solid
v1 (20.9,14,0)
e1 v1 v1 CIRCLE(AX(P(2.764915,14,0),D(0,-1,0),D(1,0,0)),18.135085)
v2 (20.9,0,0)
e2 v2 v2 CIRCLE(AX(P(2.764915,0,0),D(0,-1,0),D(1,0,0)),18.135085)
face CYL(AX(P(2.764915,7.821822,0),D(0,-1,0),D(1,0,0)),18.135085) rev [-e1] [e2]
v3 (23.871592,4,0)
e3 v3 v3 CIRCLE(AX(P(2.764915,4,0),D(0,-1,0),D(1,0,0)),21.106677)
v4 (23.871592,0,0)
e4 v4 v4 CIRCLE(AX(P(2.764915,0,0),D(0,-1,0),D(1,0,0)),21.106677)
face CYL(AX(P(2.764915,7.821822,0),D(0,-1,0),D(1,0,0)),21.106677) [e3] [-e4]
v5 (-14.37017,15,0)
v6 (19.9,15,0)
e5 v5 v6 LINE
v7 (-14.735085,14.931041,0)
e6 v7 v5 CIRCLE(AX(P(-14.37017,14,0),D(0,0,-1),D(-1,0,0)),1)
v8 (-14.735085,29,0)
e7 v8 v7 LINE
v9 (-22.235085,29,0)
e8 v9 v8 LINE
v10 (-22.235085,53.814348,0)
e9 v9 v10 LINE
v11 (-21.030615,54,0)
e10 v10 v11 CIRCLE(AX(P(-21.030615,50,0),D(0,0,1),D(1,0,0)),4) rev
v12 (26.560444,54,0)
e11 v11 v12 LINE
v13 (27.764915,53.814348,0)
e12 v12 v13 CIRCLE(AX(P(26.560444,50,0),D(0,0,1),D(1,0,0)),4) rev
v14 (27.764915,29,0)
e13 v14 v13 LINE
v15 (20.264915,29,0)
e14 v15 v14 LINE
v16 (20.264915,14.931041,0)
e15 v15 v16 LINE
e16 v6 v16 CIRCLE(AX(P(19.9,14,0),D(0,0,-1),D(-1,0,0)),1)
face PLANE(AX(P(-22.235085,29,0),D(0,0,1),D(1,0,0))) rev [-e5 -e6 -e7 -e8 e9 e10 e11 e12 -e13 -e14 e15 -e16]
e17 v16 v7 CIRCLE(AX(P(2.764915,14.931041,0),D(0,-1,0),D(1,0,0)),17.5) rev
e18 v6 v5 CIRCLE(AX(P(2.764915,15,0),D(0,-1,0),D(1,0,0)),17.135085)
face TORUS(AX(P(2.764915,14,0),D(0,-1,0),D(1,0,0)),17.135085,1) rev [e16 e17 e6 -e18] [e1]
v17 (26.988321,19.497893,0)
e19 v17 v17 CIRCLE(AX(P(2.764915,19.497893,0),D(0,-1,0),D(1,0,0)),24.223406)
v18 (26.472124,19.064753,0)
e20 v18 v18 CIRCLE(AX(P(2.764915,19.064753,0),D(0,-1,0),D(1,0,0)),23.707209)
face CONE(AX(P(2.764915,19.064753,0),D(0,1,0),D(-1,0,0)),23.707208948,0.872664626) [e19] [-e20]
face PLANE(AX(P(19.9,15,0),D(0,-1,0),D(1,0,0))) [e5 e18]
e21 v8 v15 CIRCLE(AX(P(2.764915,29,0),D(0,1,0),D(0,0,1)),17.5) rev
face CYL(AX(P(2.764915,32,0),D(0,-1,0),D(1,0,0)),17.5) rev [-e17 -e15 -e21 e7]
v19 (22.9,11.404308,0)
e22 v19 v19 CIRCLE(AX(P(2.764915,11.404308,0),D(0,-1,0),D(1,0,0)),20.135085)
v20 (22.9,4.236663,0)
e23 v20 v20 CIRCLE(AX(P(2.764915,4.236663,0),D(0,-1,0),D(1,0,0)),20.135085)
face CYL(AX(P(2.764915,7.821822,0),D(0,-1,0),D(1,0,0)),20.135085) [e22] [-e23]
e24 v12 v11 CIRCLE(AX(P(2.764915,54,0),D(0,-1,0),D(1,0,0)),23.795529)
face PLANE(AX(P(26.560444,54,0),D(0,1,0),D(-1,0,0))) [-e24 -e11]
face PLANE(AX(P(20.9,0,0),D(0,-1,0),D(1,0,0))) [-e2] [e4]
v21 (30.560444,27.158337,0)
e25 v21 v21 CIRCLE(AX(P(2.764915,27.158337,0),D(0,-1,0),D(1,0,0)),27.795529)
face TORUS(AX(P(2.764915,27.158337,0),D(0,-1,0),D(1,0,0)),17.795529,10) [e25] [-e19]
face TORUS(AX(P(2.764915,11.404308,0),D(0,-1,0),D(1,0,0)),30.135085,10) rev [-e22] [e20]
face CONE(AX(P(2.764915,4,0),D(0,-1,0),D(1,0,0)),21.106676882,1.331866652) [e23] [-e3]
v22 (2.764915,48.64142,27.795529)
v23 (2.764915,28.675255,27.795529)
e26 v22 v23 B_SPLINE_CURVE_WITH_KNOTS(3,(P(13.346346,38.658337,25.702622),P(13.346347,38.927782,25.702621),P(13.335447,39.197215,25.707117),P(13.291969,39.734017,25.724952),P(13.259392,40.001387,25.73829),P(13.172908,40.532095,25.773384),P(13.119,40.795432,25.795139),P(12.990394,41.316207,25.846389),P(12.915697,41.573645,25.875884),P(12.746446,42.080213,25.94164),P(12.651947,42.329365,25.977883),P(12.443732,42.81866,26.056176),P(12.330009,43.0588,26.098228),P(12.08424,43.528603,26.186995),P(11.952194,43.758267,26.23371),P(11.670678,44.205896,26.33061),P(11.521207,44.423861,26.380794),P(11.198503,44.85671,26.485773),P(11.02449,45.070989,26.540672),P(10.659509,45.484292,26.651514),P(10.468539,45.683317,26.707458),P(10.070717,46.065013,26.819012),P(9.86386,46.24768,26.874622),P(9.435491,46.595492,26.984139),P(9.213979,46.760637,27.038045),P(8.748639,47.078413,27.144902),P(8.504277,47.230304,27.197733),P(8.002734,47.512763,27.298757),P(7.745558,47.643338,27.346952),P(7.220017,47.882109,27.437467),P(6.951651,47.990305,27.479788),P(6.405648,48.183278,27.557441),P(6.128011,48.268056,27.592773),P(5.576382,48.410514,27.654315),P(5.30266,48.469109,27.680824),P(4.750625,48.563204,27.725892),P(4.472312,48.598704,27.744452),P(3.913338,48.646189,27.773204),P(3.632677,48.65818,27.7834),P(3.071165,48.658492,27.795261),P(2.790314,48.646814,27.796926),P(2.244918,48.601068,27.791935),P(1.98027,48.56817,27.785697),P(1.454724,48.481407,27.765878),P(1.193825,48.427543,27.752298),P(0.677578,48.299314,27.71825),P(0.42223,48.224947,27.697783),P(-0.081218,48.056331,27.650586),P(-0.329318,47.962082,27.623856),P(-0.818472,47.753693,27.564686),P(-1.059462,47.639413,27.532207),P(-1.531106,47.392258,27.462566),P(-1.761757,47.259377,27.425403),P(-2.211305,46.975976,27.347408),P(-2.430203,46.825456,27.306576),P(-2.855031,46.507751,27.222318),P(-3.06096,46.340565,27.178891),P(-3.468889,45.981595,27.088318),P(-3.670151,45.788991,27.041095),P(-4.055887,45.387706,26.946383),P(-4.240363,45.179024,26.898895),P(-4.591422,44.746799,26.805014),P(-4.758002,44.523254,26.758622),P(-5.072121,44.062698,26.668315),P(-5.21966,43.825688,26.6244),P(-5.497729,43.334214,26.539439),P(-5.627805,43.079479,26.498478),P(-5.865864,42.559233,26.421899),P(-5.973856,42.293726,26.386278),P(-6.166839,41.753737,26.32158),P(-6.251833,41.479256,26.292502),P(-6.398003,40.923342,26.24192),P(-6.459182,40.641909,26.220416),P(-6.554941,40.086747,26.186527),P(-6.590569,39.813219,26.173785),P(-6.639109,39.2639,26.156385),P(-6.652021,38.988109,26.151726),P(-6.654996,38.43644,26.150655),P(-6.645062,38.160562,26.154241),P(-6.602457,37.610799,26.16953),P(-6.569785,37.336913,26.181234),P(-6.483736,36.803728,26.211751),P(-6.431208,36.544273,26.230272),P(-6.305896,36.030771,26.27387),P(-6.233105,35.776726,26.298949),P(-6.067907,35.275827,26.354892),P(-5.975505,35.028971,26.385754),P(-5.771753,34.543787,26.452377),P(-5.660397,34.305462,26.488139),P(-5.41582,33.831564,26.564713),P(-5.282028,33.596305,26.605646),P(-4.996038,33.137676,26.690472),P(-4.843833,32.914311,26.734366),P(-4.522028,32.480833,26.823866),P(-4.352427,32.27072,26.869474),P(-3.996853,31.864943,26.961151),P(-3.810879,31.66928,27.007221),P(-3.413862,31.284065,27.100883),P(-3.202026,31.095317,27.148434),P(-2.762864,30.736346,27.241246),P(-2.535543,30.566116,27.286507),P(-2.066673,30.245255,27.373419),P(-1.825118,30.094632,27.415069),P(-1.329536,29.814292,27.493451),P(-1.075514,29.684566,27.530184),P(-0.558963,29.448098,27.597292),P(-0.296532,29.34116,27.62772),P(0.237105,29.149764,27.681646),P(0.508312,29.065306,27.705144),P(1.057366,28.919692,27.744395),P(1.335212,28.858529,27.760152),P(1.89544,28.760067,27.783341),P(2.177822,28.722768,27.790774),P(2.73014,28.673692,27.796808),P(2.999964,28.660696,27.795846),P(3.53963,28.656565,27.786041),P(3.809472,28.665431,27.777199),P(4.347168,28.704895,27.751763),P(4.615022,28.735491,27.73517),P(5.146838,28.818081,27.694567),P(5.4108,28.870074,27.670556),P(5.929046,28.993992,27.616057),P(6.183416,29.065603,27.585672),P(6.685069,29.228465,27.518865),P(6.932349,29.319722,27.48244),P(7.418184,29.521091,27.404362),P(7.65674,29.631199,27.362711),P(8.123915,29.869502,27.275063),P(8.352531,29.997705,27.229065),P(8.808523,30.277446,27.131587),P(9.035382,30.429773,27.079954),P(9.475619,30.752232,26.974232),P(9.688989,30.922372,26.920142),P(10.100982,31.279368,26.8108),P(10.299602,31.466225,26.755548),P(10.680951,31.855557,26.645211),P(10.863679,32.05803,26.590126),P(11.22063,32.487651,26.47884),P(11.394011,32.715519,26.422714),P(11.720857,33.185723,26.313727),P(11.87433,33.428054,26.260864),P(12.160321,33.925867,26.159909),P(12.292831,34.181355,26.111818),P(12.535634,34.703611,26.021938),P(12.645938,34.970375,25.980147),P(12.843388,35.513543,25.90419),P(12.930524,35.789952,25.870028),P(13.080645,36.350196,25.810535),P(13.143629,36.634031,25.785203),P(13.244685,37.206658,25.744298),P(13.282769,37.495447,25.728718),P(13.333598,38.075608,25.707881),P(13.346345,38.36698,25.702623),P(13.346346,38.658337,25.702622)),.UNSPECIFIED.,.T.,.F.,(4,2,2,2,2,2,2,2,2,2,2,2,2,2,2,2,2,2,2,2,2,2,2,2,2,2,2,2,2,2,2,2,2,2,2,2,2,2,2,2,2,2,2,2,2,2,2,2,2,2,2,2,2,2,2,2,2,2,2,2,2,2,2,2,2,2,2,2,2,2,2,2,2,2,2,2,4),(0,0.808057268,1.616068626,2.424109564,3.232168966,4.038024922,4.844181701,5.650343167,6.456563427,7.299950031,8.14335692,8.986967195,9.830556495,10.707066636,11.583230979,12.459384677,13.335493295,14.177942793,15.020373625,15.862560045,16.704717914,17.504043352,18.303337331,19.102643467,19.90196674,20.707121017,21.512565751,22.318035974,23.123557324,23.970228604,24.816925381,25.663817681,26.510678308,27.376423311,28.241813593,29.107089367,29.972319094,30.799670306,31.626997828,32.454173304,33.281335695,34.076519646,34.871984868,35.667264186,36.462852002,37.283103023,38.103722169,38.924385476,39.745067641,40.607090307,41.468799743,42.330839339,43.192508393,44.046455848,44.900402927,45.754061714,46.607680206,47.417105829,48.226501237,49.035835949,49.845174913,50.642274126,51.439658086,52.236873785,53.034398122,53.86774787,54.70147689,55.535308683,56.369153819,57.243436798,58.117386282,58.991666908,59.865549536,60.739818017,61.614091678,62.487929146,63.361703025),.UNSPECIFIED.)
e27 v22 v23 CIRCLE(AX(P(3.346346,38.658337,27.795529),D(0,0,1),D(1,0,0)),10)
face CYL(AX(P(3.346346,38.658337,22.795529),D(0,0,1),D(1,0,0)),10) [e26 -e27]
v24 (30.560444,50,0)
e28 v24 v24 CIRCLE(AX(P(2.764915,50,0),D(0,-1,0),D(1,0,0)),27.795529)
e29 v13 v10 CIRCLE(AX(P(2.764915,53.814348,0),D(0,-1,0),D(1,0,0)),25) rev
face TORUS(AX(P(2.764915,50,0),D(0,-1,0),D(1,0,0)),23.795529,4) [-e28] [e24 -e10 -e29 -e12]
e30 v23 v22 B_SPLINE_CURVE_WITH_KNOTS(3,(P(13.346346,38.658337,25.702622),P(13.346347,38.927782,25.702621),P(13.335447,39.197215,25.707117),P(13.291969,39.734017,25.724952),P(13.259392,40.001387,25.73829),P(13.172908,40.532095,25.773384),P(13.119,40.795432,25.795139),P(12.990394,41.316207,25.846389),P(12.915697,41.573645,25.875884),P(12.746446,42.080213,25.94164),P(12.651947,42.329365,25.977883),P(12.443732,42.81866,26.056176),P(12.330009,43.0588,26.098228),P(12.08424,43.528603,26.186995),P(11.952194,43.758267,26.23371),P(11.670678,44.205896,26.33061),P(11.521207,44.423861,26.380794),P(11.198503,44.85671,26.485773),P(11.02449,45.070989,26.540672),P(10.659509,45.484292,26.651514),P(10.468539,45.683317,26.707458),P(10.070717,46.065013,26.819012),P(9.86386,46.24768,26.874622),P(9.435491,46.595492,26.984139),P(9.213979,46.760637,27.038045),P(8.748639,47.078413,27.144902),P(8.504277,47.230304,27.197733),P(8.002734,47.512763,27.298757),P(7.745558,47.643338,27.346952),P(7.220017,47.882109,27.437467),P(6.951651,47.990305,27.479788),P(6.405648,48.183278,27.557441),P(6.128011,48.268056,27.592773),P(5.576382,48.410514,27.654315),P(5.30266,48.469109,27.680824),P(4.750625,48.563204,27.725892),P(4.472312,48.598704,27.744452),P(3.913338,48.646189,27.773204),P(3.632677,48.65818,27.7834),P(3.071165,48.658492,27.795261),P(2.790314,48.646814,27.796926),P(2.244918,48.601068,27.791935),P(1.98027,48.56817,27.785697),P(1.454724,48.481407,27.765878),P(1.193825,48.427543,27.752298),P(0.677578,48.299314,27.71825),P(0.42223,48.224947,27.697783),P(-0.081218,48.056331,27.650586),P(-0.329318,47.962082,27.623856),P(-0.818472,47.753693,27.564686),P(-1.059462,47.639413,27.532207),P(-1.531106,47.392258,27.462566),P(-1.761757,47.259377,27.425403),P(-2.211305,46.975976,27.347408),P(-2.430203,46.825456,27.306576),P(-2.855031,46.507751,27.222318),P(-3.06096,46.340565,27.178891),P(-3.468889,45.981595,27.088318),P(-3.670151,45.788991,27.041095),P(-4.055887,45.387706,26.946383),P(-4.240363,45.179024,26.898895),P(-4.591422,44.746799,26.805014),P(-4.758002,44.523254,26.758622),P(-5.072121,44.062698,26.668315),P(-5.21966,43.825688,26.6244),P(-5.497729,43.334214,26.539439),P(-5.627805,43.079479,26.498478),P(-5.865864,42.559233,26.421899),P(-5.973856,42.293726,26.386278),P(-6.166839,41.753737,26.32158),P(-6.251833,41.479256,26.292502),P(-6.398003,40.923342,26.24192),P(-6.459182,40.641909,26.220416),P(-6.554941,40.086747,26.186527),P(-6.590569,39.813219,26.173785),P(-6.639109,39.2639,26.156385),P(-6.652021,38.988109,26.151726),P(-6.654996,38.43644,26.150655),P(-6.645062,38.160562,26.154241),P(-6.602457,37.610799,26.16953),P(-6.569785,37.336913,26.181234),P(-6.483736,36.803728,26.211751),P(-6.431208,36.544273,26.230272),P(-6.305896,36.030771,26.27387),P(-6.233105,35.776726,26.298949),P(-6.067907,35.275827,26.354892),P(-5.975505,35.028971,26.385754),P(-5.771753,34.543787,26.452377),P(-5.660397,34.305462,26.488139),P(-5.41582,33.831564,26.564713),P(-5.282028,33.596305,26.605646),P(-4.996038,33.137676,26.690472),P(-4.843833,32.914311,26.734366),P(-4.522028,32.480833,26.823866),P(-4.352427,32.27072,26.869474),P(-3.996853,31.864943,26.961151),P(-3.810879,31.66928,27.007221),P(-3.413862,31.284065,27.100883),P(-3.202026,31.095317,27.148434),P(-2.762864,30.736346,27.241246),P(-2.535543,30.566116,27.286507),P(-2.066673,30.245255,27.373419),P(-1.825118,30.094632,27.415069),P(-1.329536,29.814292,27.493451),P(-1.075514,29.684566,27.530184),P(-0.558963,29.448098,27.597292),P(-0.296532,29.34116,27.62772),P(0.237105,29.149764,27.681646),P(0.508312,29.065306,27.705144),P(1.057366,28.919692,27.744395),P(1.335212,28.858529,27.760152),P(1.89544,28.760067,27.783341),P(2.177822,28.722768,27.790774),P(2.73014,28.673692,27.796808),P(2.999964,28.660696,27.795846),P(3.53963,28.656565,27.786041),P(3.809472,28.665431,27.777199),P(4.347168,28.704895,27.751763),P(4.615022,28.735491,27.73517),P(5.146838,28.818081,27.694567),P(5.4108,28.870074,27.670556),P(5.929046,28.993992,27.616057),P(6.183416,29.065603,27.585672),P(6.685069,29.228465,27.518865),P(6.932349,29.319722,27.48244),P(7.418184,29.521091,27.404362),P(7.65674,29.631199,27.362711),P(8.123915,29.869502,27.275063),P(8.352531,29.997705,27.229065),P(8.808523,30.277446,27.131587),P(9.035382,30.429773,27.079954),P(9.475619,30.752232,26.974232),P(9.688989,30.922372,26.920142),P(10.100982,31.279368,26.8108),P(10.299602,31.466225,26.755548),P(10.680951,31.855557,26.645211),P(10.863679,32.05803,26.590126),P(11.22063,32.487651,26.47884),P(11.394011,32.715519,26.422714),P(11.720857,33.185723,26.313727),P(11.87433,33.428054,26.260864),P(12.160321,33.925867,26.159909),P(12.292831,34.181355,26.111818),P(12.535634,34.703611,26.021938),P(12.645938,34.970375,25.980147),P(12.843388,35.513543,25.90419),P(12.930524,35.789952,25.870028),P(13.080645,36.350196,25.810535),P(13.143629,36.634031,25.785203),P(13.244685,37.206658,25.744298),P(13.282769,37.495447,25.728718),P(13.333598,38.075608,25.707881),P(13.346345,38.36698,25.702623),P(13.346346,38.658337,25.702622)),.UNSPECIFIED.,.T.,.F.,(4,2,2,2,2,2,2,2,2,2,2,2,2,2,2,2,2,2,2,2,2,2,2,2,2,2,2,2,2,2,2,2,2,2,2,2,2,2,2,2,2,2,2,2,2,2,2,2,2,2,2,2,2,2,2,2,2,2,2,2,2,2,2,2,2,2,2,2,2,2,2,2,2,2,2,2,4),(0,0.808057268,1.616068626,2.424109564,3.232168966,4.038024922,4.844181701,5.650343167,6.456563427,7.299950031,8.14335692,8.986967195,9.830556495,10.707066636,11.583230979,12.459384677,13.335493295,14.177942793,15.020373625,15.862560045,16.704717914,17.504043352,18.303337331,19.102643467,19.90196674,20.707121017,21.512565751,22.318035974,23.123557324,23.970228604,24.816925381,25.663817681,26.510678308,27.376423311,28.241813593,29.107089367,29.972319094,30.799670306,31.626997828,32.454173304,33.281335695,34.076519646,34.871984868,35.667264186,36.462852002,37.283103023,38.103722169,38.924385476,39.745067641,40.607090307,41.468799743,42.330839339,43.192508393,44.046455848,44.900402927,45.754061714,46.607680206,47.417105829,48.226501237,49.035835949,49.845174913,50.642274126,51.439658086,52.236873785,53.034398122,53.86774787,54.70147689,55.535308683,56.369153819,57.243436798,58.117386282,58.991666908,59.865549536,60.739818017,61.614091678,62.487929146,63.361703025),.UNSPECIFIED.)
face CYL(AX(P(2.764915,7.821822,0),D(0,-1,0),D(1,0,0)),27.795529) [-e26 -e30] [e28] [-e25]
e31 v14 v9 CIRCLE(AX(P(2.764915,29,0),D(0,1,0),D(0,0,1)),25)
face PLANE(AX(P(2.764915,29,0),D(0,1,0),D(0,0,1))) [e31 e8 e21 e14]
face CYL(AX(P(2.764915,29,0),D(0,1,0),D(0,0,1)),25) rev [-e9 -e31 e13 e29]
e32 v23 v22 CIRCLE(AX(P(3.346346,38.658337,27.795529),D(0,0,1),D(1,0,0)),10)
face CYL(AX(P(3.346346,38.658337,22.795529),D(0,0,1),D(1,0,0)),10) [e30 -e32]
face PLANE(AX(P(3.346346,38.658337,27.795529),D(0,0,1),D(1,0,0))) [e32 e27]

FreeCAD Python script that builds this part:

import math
import FreeCAD as App
import Part
import Sketcher
from FreeCAD import Vector
Q = App.Units.Quantity

doc = App.newDocument("Part")
body = doc.addObject("PartDesign::Body", "Body")

# Sketch on XY plane
sketch1 = doc.addObject("Sketcher::SketchObject", "Sketch")
body.addObject(sketch1)
sketch1.AttachmentSupport = (doc.XY_Plane, [""])
sketch1.MapMode = "FlatFace"
sketch1.addGeometry([
    Part.LineSegment(Vector(20.9, 0, 0), Vector(23.871592, 0, 0)),  # 0
    Part.LineSegment(Vector(23.871592, 0, 0), Vector(23.871592, 4, 0)),  # 1
    Part.LineSegment(Vector(23.871592, 4, 0), Vector(22.9, 4.236663, 0)),  # 2
    Part.LineSegment(Vector(22.9, 4.236663, 0), Vector(22.9, 11.404308, 0)),  # 3
    Part.ArcOfCircle(Part.Circle(Vector(32.9, 11.404308, 0), Vector(0, 0, 1), 10), math.radians(130), math.radians(180)),  # 4
    Part.LineSegment(Vector(26.472124, 19.064753, 0), Vector(26.988321, 19.497893, 0)),  # 5
    Part.ArcOfCircle(Part.Circle(Vector(20.560444, 27.158337, 0), Vector(0, 0, 1), 10), math.radians(-50), math.radians(0)),  # 6
    Part.LineSegment(Vector(30.560444, 27.158337, 0), Vector(30.560444, 50, 0)),  # 7
    Part.ArcOfCircle(Part.Circle(Vector(26.560444, 50, 0), Vector(0, 0, 1), 4), math.radians(0), math.radians(90)),  # 8
    Part.LineSegment(Vector(26.560444, 54, 0), Vector(2.764915, 54, 0)),  # 9
    Part.LineSegment(Vector(2.764915, 54, 0), Vector(2.764915, 15, 0)),  # 10
    Part.LineSegment(Vector(2.764915, 15, 0), Vector(19.9, 15, 0)),  # 11
    Part.ArcOfCircle(Part.Circle(Vector(19.9, 14, 0), Vector(0, 0, 1), 1), math.radians(0), math.radians(90)),  # 12
    Part.LineSegment(Vector(20.9, 14, 0), Vector(20.9, 0, 0)),  # 13
], False)
sketch1.addGeometry(Part.LineSegment(Vector(2.764915, 0, 0), Vector(2.764915, 54, 0)), True)  # axis
sketch1.addConstraint([
    Sketcher.Constraint("Coincident", 0, 2, 1, 1),
    Sketcher.Constraint("Coincident", 1, 2, 2, 1),
    Sketcher.Constraint("Coincident", 2, 2, 3, 1),
    Sketcher.Constraint("Tangent", 3, 2, 4, 2),
    Sketcher.Constraint("Tangent", 4, 1, 5, 1),
    Sketcher.Constraint("Tangent", 5, 2, 6, 1),
    Sketcher.Constraint("Tangent", 6, 2, 7, 1),
    Sketcher.Constraint("Tangent", 7, 2, 8, 1),
    Sketcher.Constraint("Tangent", 8, 2, 9, 1),
    Sketcher.Constraint("Coincident", 9, 2, 10, 1),
    Sketcher.Constraint("Coincident", 10, 2, 11, 1),
    Sketcher.Constraint("Tangent", 11, 2, 12, 2),
    Sketcher.Constraint("Tangent", 12, 1, 13, 1),
    Sketcher.Constraint("Coincident", 13, 2, 0, 1),
    Sketcher.Constraint("Horizontal", 0),
    Sketcher.Constraint("Vertical", 1),
    Sketcher.Constraint("Vertical", 3),
    Sketcher.Constraint("Vertical", 7),
    Sketcher.Constraint("Horizontal", 9),
    Sketcher.Constraint("Vertical", 10),
    Sketcher.Constraint("Horizontal", 11),
    Sketcher.Constraint("Vertical", 13),
    Sketcher.Constraint("Vertical", 14),
    Sketcher.Constraint("Coincident", 14, 2, 9, 2),
    Sketcher.Constraint("Equal", 4, 6),
    Sketcher.Constraint("PointOnObject", 0, 2, -1),
    Sketcher.Constraint("PointOnObject", 14, 1, -1),
    Sketcher.Constraint("Radius", 4, 10.0),
    Sketcher.Constraint("Radius", 8, 4.0),
    Sketcher.Constraint("Radius", 12, 1.0),
    Sketcher.Constraint("DistanceY", 1, 1, 1, 2, 4.0),
    Sketcher.Constraint("DistanceY", 10, 2, 10, 1, 39.0),
    Sketcher.Constraint("DistanceY", 13, 2, 13, 1, 14.0),
    Sketcher.Constraint("Angle", 5, Q("40 deg")),
    Sketcher.Constraint("Distance", 2, 1.0),
    Sketcher.Constraint("DistanceX", 12, 3, 4, 3, 13.0),
    Sketcher.Constraint("DistanceX", -1, 1, 4, 3, 32.9),
    Sketcher.Constraint("DistanceX", 0, 1, 0, 2, 2.971592),
    Sketcher.Constraint("DistanceX", 9, 2, 9, 1, 23.795529),
    Sketcher.Constraint("DistanceX", 11, 1, 11, 2, 17.135085),
    Sketcher.Constraint("DistanceY", 3, 1, 3, 2, 7.167645),
])
revolution = doc.addObject("PartDesign::Revolution", "Revolution")
body.addObject(revolution)
revolution.Profile = sketch1
revolution.ReferenceAxis = (sketch1, ["Axis0"])
revolution.Angle = 360

# Sketch on XZ plane
sketch2 = doc.addObject("Sketcher::SketchObject", "Sketch001")
body.addObject(sketch2)
sketch2.AttachmentSupport = (doc.XZ_Plane, [""])
sketch2.MapMode = "FlatFace"
sketch2.AttachmentOffset = App.Placement(Vector(0, 0, -54), App.Rotation())
sketch2.addGeometry([
    Part.LineSegment(Vector(-22.235085, 0, 0), Vector(27.764915, 0, 0)),
    Part.ArcOfCircle(Part.Circle(Vector(2.764915, 0, 0), Vector(0, 0, 1), 25), math.radians(180), math.radians(360)),
], False)
sketch2.addConstraint([
    Sketcher.Constraint("Coincident", 0, 1, 1, 1),
    Sketcher.Constraint("Coincident", 1, 2, 0, 2),
    Sketcher.Constraint("Horizontal", 0),
    Sketcher.Constraint("PointOnObject", 1, 3, -1),
    Sketcher.Constraint("PointOnObject", 0, 1, -1),
    Sketcher.Constraint("Radius", 1, 25.0),
    Sketcher.Constraint("DistanceX", -1, 1, 1, 3, 2.764915),
])
pocket1 = doc.addObject("PartDesign::Pocket", "Pocket")
body.addObject(pocket1)
pocket1.Profile = sketch2
pocket1.Length = 25
pocket1.Reversed = True

# Sketch on XY plane
sketch3 = doc.addObject("Sketcher::SketchObject", "Sketch002")
body.addObject(sketch3)
sketch3.AttachmentSupport = (doc.XY_Plane, [""])
sketch3.MapMode = "FlatFace"
sketch3.AttachmentOffset = App.Placement(Vector(0, 0, 27.795529), App.Rotation())
sketch3.addGeometry(Part.Circle(Vector(3.346346, 38.658337, 0), Vector(0, 0, 1), 10), False)
sketch3.addConstraint([
    Sketcher.Constraint("Diameter", 0, 20.0),
    Sketcher.Constraint("DistanceX", -1, 1, 0, 3, 3.346346),
    Sketcher.Constraint("DistanceY", -1, 1, 0, 3, 38.658337),
])
pad1 = doc.addObject("PartDesign::Pad", "Pad")
body.addObject(pad1)
pad1.Profile = sketch3
pad1.Length = 5
pad1.Reversed = True

# Sketch on XZ plane
sketch4 = doc.addObject("Sketcher::SketchObject", "Sketch003")
body.addObject(sketch4)
sketch4.AttachmentSupport = (doc.XZ_Plane, [""])
sketch4.MapMode = "FlatFace"
sketch4.AttachmentOffset = App.Placement(Vector(0, 0, -17), App.Rotation())
sketch4.addGeometry([
    Part.LineSegment(Vector(-14.735085, 0, 0), Vector(20.264915, 0, 0)),
    Part.ArcOfCircle(Part.Circle(Vector(2.764915, 0, 0), Vector(0, 0, 1), 17.5), math.radians(180), math.radians(360)),
], False)
sketch4.addConstraint([
    Sketcher.Constraint("Coincident", 0, 1, 1, 1),
    Sketcher.Constraint("Coincident", 1, 2, 0, 2),
    Sketcher.Constraint("Horizontal", 0),
    Sketcher.Constraint("PointOnObject", 1, 3, -1),
    Sketcher.Constraint("PointOnObject", 0, 1, -1),
    Sketcher.Constraint("Radius", 1, 17.5),
    Sketcher.Constraint("DistanceX", -1, 1, 1, 3, 2.764915),
])
pocket2 = doc.addObject("PartDesign::Pocket", "Pocket001")
body.addObject(pocket2)
pocket2.Profile = sketch4
pocket2.Type = "ThroughAll"
pocket2.Midplane = True

doc.recompute()
